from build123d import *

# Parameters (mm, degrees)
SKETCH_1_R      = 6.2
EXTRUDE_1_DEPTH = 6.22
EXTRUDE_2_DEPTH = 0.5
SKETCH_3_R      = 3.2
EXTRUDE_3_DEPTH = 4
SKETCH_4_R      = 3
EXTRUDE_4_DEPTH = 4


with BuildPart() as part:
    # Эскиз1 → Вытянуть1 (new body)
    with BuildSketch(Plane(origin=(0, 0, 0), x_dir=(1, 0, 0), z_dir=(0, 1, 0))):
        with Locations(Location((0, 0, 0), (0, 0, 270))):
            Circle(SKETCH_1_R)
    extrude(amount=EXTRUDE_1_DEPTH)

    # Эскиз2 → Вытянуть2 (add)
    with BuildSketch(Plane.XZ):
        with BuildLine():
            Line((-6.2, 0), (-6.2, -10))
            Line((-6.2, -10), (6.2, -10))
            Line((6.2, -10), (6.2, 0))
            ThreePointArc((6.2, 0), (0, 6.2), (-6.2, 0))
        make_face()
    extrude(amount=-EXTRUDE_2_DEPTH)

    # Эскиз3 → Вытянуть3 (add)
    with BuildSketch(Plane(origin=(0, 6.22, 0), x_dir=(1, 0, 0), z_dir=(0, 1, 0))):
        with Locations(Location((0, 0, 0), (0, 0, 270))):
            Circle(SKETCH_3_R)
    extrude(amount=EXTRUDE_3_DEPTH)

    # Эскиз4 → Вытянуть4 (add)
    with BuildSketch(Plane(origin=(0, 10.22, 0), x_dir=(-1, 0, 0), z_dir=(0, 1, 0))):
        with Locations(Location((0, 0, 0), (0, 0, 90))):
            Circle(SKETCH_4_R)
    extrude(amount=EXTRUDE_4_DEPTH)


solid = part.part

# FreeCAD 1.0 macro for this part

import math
import FreeCAD as App
import Part
import Sketcher

V = App.Vector

doc = App.newDocument("Part")
body = doc.addObject("PartDesign::Body", "Body")

sketch1 = body.newObject("Sketcher::SketchObject", "Sketch")
sketch1.AttachmentSupport = (doc.getObject("XZ_Plane"), [""])
sketch1.MapMode = "FlatFace"
sketch1.addGeometry(Part.Circle(V(0, 0, 0), V(0, 0, 1), 6), False)
sketch1.addConstraint(Sketcher.Constraint("Coincident", 0, 3, -1, 1))
sketch1.addConstraint(Sketcher.Constraint("Diameter", 0, 12.4))
pad1 = body.newObject("PartDesign::Pad", "Pad")
pad1.Profile = sketch1
pad1.Length = 6.22
pad1.Reversed = True

sketch2 = body.newObject("Sketcher::SketchObject", "Sketch001")
sketch2.AttachmentSupport = (doc.getObject("XZ_Plane"), [""])
sketch2.MapMode = "FlatFace"
sketch2.addGeometry(Part.LineSegment(V(-6, 0, 0), V(-6, -10, 0)), False)
sketch2.addGeometry(Part.LineSegment(V(-6, -10, 0), V(6, -10, 0)), False)
sketch2.addGeometry(Part.LineSegment(V(6, -10, 0), V(6, 0, 0)), False)
sketch2.addGeometry(Part.ArcOfCircle(Part.Circle(V(0, 0, 0), V(0, 0, 1), 6), math.radians(0), math.radians(180)), False)
sketch2.addConstraint(Sketcher.Constraint("Coincident", 0, 2, 1, 1))
sketch2.addConstraint(Sketcher.Constraint("Coincident", 1, 2, 2, 1))
sketch2.addConstraint(Sketcher.Constraint("Tangent", 2, 2, 3, 1))
sketch2.addConstraint(Sketcher.Constraint("Tangent", 3, 2, 0, 1))
sketch2.addConstraint(Sketcher.Constraint("Vertical", 0))
sketch2.addConstraint(Sketcher.Constraint("Horizontal", 1))
sketch2.addConstraint(Sketcher.Constraint("Vertical", 2))
sketch2.addConstraint(Sketcher.Constraint("Coincident", 3, 3, -1, 1))
sketch2.addConstraint(Sketcher.Constraint("Radius", 3, 6.2))
sketch2.addConstraint(Sketcher.Constraint("DistanceY", 0, 2, 0, 1, 10.0))
pad2 = body.newObject("PartDesign::Pad", "Pad001")
pad2.Profile = sketch2
pad2.Length = 0.5
pad2.Reversed = True

sketch3 = body.newObject("Sketcher::SketchObject", "Sketch002")
sketch3.AttachmentSupport = (doc.getObject("XZ_Plane"), [""])
sketch3.MapMode = "FlatFace"
sketch3.AttachmentOffset = App.Placement(V(0, 0, -6.22), App.Rotation())
sketch3.addGeometry(Part.Circle(V(0, 0, 0), V(0, 0, 1), 3.2), False)
sketch3.addConstraint(Sketcher.Constraint("Coincident", 0, 3, -1, 1))
sketch3.addConstraint(Sketcher.Constraint("Diameter", 0, 6.4))
pad3 = body.newObject("PartDesign::Pad", "Pad002")
pad3.Profile = sketch3
pad3.Length = 4
pad3.Reversed = True

sketch4 = body.newObject("Sketcher::SketchObject", "Sketch003")
sketch4.AttachmentSupport = (doc.getObject("XZ_Plane"), [""])
sketch4.MapMode = "FlatFace"
sketch4.AttachmentOffset = App.Placement(V(0, 0, -10.22), App.Rotation())
sketch4.addGeometry(Part.Circle(V(0, 0, 0), V(0, 0, 1), 3), False)
sketch4.addConstraint(Sketcher.Constraint("Coincident", 0, 3, -1, 1))
sketch4.addConstraint(Sketcher.Constraint("Diameter", 0, 6.0))
pad4 = body.newObject("PartDesign::Pad", "Pad003")
pad4.Profile = sketch4
pad4.Length = 4
pad4.Reversed = True

doc.recompute()
